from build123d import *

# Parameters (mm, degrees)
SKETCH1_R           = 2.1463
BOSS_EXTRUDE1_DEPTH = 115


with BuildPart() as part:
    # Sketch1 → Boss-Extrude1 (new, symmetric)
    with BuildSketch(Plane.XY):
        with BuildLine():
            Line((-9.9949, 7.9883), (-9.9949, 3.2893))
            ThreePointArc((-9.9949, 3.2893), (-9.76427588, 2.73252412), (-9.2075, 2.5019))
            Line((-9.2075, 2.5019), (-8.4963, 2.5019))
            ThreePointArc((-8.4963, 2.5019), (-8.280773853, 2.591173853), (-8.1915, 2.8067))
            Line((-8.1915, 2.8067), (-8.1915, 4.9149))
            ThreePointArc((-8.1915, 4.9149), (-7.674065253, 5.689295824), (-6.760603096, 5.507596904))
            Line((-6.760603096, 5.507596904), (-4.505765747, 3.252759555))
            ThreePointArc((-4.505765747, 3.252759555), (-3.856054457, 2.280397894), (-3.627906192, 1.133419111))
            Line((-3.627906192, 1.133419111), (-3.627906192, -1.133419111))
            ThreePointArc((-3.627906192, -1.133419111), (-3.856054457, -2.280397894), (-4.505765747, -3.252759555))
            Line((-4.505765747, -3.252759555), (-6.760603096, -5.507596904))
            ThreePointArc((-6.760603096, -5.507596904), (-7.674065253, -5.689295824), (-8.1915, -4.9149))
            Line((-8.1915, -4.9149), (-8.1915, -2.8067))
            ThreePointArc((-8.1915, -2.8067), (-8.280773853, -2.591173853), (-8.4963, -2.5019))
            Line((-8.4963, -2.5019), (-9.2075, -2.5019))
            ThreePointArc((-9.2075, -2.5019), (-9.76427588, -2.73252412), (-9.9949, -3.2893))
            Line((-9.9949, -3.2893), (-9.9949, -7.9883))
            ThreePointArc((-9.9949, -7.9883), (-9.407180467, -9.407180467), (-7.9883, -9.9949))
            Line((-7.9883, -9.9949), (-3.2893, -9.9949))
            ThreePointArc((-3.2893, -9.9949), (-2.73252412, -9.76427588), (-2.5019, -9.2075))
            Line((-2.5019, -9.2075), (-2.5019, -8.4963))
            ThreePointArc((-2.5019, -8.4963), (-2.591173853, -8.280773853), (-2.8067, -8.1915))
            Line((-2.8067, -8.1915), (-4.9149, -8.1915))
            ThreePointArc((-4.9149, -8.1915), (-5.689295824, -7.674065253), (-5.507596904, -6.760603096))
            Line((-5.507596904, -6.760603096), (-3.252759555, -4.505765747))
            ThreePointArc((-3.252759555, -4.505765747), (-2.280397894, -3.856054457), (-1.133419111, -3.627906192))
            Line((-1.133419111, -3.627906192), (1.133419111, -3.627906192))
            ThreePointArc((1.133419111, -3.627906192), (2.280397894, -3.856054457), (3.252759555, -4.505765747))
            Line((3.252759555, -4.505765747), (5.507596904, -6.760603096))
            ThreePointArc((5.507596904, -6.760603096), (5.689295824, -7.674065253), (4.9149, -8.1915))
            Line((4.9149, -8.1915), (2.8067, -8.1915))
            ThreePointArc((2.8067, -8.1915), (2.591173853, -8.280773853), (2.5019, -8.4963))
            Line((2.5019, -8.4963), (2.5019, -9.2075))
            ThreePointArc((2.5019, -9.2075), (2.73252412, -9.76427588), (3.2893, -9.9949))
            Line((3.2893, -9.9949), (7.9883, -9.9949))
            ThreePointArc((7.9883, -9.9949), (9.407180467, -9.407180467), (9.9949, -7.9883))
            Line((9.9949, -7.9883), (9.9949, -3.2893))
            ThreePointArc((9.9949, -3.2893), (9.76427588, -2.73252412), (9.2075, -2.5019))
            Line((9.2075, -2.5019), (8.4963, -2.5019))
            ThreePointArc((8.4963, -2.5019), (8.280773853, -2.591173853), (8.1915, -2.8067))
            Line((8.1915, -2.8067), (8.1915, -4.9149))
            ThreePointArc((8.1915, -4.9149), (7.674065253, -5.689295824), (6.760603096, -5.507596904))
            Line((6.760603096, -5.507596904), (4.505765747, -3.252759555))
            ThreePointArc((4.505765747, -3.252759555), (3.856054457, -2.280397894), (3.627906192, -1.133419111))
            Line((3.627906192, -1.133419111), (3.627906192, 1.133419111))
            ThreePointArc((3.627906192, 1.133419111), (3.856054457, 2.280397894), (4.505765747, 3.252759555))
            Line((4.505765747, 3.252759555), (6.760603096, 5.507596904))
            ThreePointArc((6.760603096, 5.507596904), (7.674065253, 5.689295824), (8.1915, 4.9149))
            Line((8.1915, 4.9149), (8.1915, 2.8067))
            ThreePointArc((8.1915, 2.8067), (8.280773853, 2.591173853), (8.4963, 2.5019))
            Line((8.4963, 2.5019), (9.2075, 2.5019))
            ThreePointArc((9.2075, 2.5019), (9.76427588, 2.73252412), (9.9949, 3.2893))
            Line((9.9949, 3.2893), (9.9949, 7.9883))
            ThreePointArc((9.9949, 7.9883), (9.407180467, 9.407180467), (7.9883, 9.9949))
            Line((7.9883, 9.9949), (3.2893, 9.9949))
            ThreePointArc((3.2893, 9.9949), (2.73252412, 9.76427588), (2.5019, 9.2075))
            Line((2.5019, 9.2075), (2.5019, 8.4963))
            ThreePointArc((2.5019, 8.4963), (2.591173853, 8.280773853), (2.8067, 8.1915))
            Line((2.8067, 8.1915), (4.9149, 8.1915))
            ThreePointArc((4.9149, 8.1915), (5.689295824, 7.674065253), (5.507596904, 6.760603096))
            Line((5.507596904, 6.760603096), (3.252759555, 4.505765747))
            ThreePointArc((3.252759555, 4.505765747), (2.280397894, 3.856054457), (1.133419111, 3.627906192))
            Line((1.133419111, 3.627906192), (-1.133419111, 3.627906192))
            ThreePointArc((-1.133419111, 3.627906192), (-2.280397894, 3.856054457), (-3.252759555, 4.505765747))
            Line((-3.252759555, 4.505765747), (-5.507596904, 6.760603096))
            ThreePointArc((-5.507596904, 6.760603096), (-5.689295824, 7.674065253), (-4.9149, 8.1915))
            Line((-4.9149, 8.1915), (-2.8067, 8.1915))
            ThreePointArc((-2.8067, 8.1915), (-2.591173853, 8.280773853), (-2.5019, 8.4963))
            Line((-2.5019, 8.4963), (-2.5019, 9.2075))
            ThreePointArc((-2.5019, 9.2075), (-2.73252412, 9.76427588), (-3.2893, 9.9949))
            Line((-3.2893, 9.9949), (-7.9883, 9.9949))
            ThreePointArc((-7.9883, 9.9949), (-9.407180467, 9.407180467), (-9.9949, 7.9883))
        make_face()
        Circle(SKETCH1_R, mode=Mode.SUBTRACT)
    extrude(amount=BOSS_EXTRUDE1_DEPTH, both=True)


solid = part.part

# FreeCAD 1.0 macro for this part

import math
import FreeCAD as App
import Part
import Sketcher
Q = App.Units.Quantity

doc = App.newDocument("Part")
body = doc.addObject("PartDesign::Body", "Body")

sketch1 = doc.addObject("Sketcher::SketchObject", "Sketch")
body.addObject(sketch1)
sketch1.AttachmentSupport = (doc.XY_Plane, [""])
sketch1.MapMode = "FlatFace"
sketch1.addGeometry(Part.LineSegment(App.Vector(-9.99, 7.99, 0), App.Vector(-9.99, 3.29, 0)), False)
sketch1.addGeometry(Part.ArcOfCircle(Part.Circle(App.Vector(-9.21, 3.29, 0), App.Vector(0, 0, 1), 0.79), math.radians(180), math.radians(270)), False)
sketch1.addGeometry(Part.LineSegment(App.Vector(-9.21, 2.5, 0), App.Vector(-8.5, 2.5, 0)), False)
sketch1.addGeometry(Part.ArcOfCircle(Part.Circle(App.Vector(-8.5, 2.81, 0), App.Vector(0, 0, 1), 0.3), math.radians(-90), math.radians(0)), False)
sketch1.addGeometry(Part.LineSegment(App.Vector(-8.19, 2.81, 0), App.Vector(-8.19, 4.91, 0)), False)
sketch1.addGeometry(Part.ArcOfCircle(Part.Circle(App.Vector(-7.35, 4.91, 0), App.Vector(0, 0, 1), 0.84), math.radians(45), math.radians(180)), False)
sketch1.addGeometry(Part.LineSegment(App.Vector(-6.76, 5.51, 0), App.Vector(-4.51, 3.25, 0)), False)
sketch1.addGeometry(Part.ArcOfCircle(Part.Circle(App.Vector(-6.63, 1.13, 0), App.Vector(0, 0, 1), 3), math.radians(0), math.radians(45)), False)
sketch1.addGeometry(Part.LineSegment(App.Vector(-3.63, 1.13, 0), App.Vector(-3.63, -1.13, 0)), False)
sketch1.addGeometry(Part.ArcOfCircle(Part.Circle(App.Vector(-6.63, -1.13, 0), App.Vector(0, 0, 1), 3), math.radians(-45), math.radians(0)), False)
sketch1.addGeometry(Part.LineSegment(App.Vector(-4.51, -3.25, 0), App.Vector(-6.76, -5.51, 0)), False)
sketch1.addGeometry(Part.ArcOfCircle(Part.Circle(App.Vector(-7.35, -4.91, 0), App.Vector(0, 0, 1), 0.84), math.radians(180), math.radians(315)), False)
sketch1.addGeometry(Part.LineSegment(App.Vector(-8.19, -4.91, 0), App.Vector(-8.19, -2.81, 0)), False)
sketch1.addGeometry(Part.ArcOfCircle(Part.Circle(App.Vector(-8.5, -2.81, 0), App.Vector(0, 0, 1), 0.3), math.radians(0), math.radians(90)), False)
sketch1.addGeometry(Part.LineSegment(App.Vector(-8.5, -2.5, 0), App.Vector(-9.21, -2.5, 0)), False)
sketch1.addGeometry(Part.ArcOfCircle(Part.Circle(App.Vector(-9.21, -3.29, 0), App.Vector(0, 0, 1), 0.79), math.radians(90), math.radians(180)), False)
sketch1.addGeometry(Part.LineSegment(App.Vector(-9.99, -3.29, 0), App.Vector(-9.99, -7.99, 0)), False)
sketch1.addGeometry(Part.ArcOfCircle(Part.Circle(App.Vector(-7.99, -7.99, 0), App.Vector(0, 0, 1), 2.01), math.radians(180), math.radians(270)), False)
sketch1.addGeometry(Part.LineSegment(App.Vector(-7.99, -9.99, 0), App.Vector(-3.29, -9.99, 0)), False)
sketch1.addGeometry(Part.ArcOfCircle(Part.Circle(App.Vector(-3.29, -9.21, 0), App.Vector(0, 0, 1), 0.79), math.radians(-90), math.radians(0)), False)
sketch1.addGeometry(Part.LineSegment(App.Vector(-2.5, -9.21, 0), App.Vector(-2.5, -8.5, 0)), False)
sketch1.addGeometry(Part.ArcOfCircle(Part.Circle(App.Vector(-2.81, -8.5, 0), App.Vector(0, 0, 1), 0.3), math.radians(0), math.radians(90)), False)
sketch1.addGeometry(Part.LineSegment(App.Vector(-2.81, -8.19, 0), App.Vector(-4.91, -8.19, 0)), False)
sketch1.addGeometry(Part.ArcOfCircle(Part.Circle(App.Vector(-4.91, -7.35, 0), App.Vector(0, 0, 1), 0.84), math.radians(135), math.radians(270)), False)
sketch1.addGeometry(Part.LineSegment(App.Vector(-5.51, -6.76, 0), App.Vector(-3.25, -4.51, 0)), False)
sketch1.addGeometry(Part.ArcOfCircle(Part.Circle(App.Vector(-1.13, -6.63, 0), App.Vector(0, 0, 1), 3), math.radians(90), math.radians(135)), False)
sketch1.addGeometry(Part.LineSegment(App.Vector(-1.13, -3.63, 0), App.Vector(1.13, -3.63, 0)), False)
sketch1.addGeometry(Part.ArcOfCircle(Part.Circle(App.Vector(1.13, -6.63, 0), App.Vector(0, 0, 1), 3), math.radians(45), math.radians(90)), False)
sketch1.addGeometry(Part.LineSegment(App.Vector(3.25, -4.51, 0), App.Vector(5.51, -6.76, 0)), False)
sketch1.addGeometry(Part.ArcOfCircle(Part.Circle(App.Vector(4.91, -7.35, 0), App.Vector(0, 0, 1), 0.84), math.radians(-90), math.radians(45)), False)
sketch1.addGeometry(Part.LineSegment(App.Vector(4.91, -8.19, 0), App.Vector(2.81, -8.19, 0)), False)
sketch1.addGeometry(Part.ArcOfCircle(Part.Circle(App.Vector(2.81, -8.5, 0), App.Vector(0, 0, 1), 0.3), math.radians(90), math.radians(180)), False)
sketch1.addGeometry(Part.LineSegment(App.Vector(2.5, -8.5, 0), App.Vector(2.5, -9.21, 0)), False)
sketch1.addGeometry(Part.ArcOfCircle(Part.Circle(App.Vector(3.29, -9.21, 0), App.Vector(0, 0, 1), 0.79), math.radians(180), math.radians(270)), False)
sketch1.addGeometry(Part.LineSegment(App.Vector(3.29, -9.99, 0), App.Vector(7.99, -9.99, 0)), False)
sketch1.addGeometry(Part.ArcOfCircle(Part.Circle(App.Vector(7.99, -7.99, 0), App.Vector(0, 0, 1), 2.01), math.radians(-90), math.radians(0)), False)
sketch1.addGeometry(Part.LineSegment(App.Vector(9.99, -7.99, 0), App.Vector(9.99, -3.29, 0)), False)
sketch1.addGeometry(Part.ArcOfCircle(Part.Circle(App.Vector(9.21, -3.29, 0), App.Vector(0, 0, 1), 0.79), math.radians(0), math.radians(90)), False)
sketch1.addGeometry(Part.LineSegment(App.Vector(9.21, -2.5, 0), App.Vector(8.5, -2.5, 0)), False)
sketch1.addGeometry(Part.ArcOfCircle(Part.Circle(App.Vector(8.5, -2.81, 0), App.Vector(0, 0, 1), 0.3), math.radians(90), math.radians(180)), False)
sketch1.addGeometry(Part.LineSegment(App.Vector(8.19, -2.81, 0), App.Vector(8.19, -4.91, 0)), False)
sketch1.addGeometry(Part.ArcOfCircle(Part.Circle(App.Vector(7.35, -4.91, 0), App.Vector(0, 0, 1), 0.84), math.radians(-135), math.radians(0)), False)
sketch1.addGeometry(Part.LineSegment(App.Vector(6.76, -5.51, 0), App.Vector(4.51, -3.25, 0)), False)
sketch1.addGeometry(Part.ArcOfCircle(Part.Circle(App.Vector(6.63, -1.13, 0), App.Vector(0, 0, 1), 3), math.radians(180), math.radians(225)), False)
sketch1.addGeometry(Part.LineSegment(App.Vector(3.63, -1.13, 0), App.Vector(3.63, 1.13, 0)), False)
sketch1.addGeometry(Part.ArcOfCircle(Part.Circle(App.Vector(6.63, 1.13, 0), App.Vector(0, 0, 1), 3), math.radians(135), math.radians(180)), False)
sketch1.addGeometry(Part.LineSegment(App.Vector(4.51, 3.25, 0), App.Vector(6.76, 5.51, 0)), False)
sketch1.addGeometry(Part.ArcOfCircle(Part.Circle(App.Vector(7.35, 4.91, 0), App.Vector(0, 0, 1), 0.84), math.radians(0), math.radians(135)), False)
sketch1.addGeometry(Part.LineSegment(App.Vector(8.19, 4.91, 0), App.Vector(8.19, 2.81, 0)), False)
sketch1.addGeometry(Part.ArcOfCircle(Part.Circle(App.Vector(8.5, 2.81, 0), App.Vector(0, 0, 1), 0.3), math.radians(180), math.radians(270)), False)
sketch1.addGeometry(Part.LineSegment(App.Vector(8.5, 2.5, 0), App.Vector(9.21, 2.5, 0)), False)
sketch1.addGeometry(Part.ArcOfCircle(Part.Circle(App.Vector(9.21, 3.29, 0), App.Vector(0, 0, 1), 0.79), math.radians(-90), math.radians(0)), False)
sketch1.addGeometry(Part.LineSegment(App.Vector(9.99, 3.29, 0), App.Vector(9.99, 7.99, 0)), False)
sketch1.addGeometry(Part.ArcOfCircle(Part.Circle(App.Vector(7.99, 7.99, 0), App.Vector(0, 0, 1), 2.01), math.radians(0), math.radians(90)), False)
sketch1.addGeometry(Part.LineSegment(App.Vector(7.99, 9.99, 0), App.Vector(3.29, 9.99, 0)), False)
sketch1.addGeometry(Part.ArcOfCircle(Part.Circle(App.Vector(3.29, 9.21, 0), App.Vector(0, 0, 1), 0.79), math.radians(90), math.radians(180)), False)
sketch1.addGeometry(Part.LineSegment(App.Vector(2.5, 9.21, 0), App.Vector(2.5, 8.5, 0)), False)
sketch1.addGeometry(Part.ArcOfCircle(Part.Circle(App.Vector(2.81, 8.5, 0), App.Vector(0, 0, 1), 0.3), math.radians(180), math.radians(270)), False)
sketch1.addGeometry(Part.LineSegment(App.Vector(2.81, 8.19, 0), App.Vector(4.91, 8.19, 0)), False)
sketch1.addGeometry(Part.ArcOfCircle(Part.Circle(App.Vector(4.91, 7.35, 0), App.Vector(0, 0, 1), 0.84), math.radians(-45), math.radians(90)), False)
sketch1.addGeometry(Part.LineSegment(App.Vector(5.51, 6.76, 0), App.Vector(3.25, 4.51, 0)), False)
sketch1.addGeometry(Part.ArcOfCircle(Part.Circle(App.Vector(1.13, 6.63, 0), App.Vector(0, 0, 1), 3), math.radians(-90), math.radians(-45)), False)
sketch1.addGeometry(Part.LineSegment(App.Vector(1.13, 3.63, 0), App.Vector(-1.13, 3.63, 0)), False)
sketch1.addGeometry(Part.ArcOfCircle(Part.Circle(App.Vector(-1.13, 6.63, 0), App.Vector(0, 0, 1), 3), math.radians(-135), math.radians(-90)), False)
sketch1.addGeometry(Part.LineSegment(App.Vector(-3.25, 4.51, 0), App.Vector(-5.51, 6.76, 0)), False)
sketch1.addGeometry(Part.ArcOfCircle(Part.Circle(App.Vector(-4.91, 7.35, 0), App.Vector(0, 0, 1), 0.84), math.radians(90), math.radians(225)), False)
sketch1.addGeometry(Part.LineSegment(App.Vector(-4.91, 8.19, 0), App.Vector(-2.81, 8.19, 0)), False)
sketch1.addGeometry(Part.ArcOfCircle(Part.Circle(App.Vector(-2.81, 8.5, 0), App.Vector(0, 0, 1), 0.3), math.radians(-90), math.radians(0)), False)
sketch1.addGeometry(Part.LineSegment(App.Vector(-2.5, 8.5, 0), App.Vector(-2.5, 9.21, 0)), False)
sketch1.addGeometry(Part.ArcOfCircle(Part.Circle(App.Vector(-3.29, 9.21, 0), App.Vector(0, 0, 1), 0.79), math.radians(0), math.radians(90)), False)
sketch1.addGeometry(Part.LineSegment(App.Vector(-3.29, 9.99, 0), App.Vector(-7.99, 9.99, 0)), False)
sketch1.addGeometry(Part.ArcOfCircle(Part.Circle(App.Vector(-7.99, 7.99, 0), App.Vector(0, 0, 1), 2.01), math.radians(90), math.radians(180)), False)
sketch1.addGeometry(Part.Circle(App.Vector(0, 0, 0), App.Vector(0, 0, 1), 2.15), False)
sketch1.addConstraint(Sketcher.Constraint("Tangent", 0, 2, 1, 1))
sketch1.addConstraint(Sketcher.Constraint("Tangent", 1, 2, 2, 1))
sketch1.addConstraint(Sketcher.Constraint("Tangent", 2, 2, 3, 1))
sketch1.addConstraint(Sketcher.Constraint("Tangent", 3, 2, 4, 1))
sketch1.addConstraint(Sketcher.Constraint("Tangent", 4, 2, 5, 2))
sketch1.addConstraint(Sketcher.Constraint("Tangent", 5, 1, 6, 1))
sketch1.addConstraint(Sketcher.Constraint("Tangent", 6, 2, 7, 2))
sketch1.addConstraint(Sketcher.Constraint("Tangent", 7, 1, 8, 1))
sketch1.addConstraint(Sketcher.Constraint("Tangent", 8, 2, 9, 2))
sketch1.addConstraint(Sketcher.Constraint("Tangent", 9, 1, 10, 1))
sketch1.addConstraint(Sketcher.Constraint("Tangent", 10, 2, 11, 2))
sketch1.addConstraint(Sketcher.Constraint("Tangent", 11, 1, 12, 1))
sketch1.addConstraint(Sketcher.Constraint("Tangent", 12, 2, 13, 1))
sketch1.addConstraint(Sketcher.Constraint("Tangent", 13, 2, 14, 1))
sketch1.addConstraint(Sketcher.Constraint("Tangent", 14, 2, 15, 1))
sketch1.addConstraint(Sketcher.Constraint("Tangent", 15, 2, 16, 1))
sketch1.addConstraint(Sketcher.Constraint("Tangent", 16, 2, 17, 1))
sketch1.addConstraint(Sketcher.Constraint("Tangent", 17, 2, 18, 1))
sketch1.addConstraint(Sketcher.Constraint("Tangent", 18, 2, 19, 1))
sketch1.addConstraint(Sketcher.Constraint("Tangent", 19, 2, 20, 1))
sketch1.addConstraint(Sketcher.Constraint("Tangent", 20, 2, 21, 1))
sketch1.addConstraint(Sketcher.Constraint("Tangent", 21, 2, 22, 1))
sketch1.addConstraint(Sketcher.Constraint("Tangent", 22, 2, 23, 2))
sketch1.addConstraint(Sketcher.Constraint("Tangent", 23, 1, 24, 1))
sketch1.addConstraint(Sketcher.Constraint("Tangent", 24, 2, 25, 2))
sketch1.addConstraint(Sketcher.Constraint("Tangent", 25, 1, 26, 1))
sketch1.addConstraint(Sketcher.Constraint("Tangent", 26, 2, 27, 2))
sketch1.addConstraint(Sketcher.Constraint("Tangent", 27, 1, 28, 1))
sketch1.addConstraint(Sketcher.Constraint("Tangent", 28, 2, 29, 2))
sketch1.addConstraint(Sketcher.Constraint("Tangent", 29, 1, 30, 1))
sketch1.addConstraint(Sketcher.Constraint("Tangent", 30, 2, 31, 1))
sketch1.addConstraint(Sketcher.Constraint("Tangent", 31, 2, 32, 1))
sketch1.addConstraint(Sketcher.Constraint("Tangent", 32, 2, 33, 1))
sketch1.addConstraint(Sketcher.Constraint("Tangent", 33, 2, 34, 1))
sketch1.addConstraint(Sketcher.Constraint("Tangent", 34, 2, 35, 1))
sketch1.addConstraint(Sketcher.Constraint("Tangent", 35, 2, 36, 1))
sketch1.addConstraint(Sketcher.Constraint("Tangent", 36, 2, 37, 1))
sketch1.addConstraint(Sketcher.Constraint("Tangent", 37, 2, 38, 1))
sketch1.addConstraint(Sketcher.Constraint("Tangent", 38, 2, 39, 1))
sketch1.addConstraint(Sketcher.Constraint("Tangent", 39, 2, 40, 1))
sketch1.addConstraint(Sketcher.Constraint("Tangent", 40, 2, 41, 2))
sketch1.addConstraint(Sketcher.Constraint("Tangent", 41, 1, 42, 1))
sketch1.addConstraint(Sketcher.Constraint("Tangent", 42, 2, 43, 2))
sketch1.addConstraint(Sketcher.Constraint("Tangent", 43, 1, 44, 1))
sketch1.addConstraint(Sketcher.Constraint("Tangent", 44, 2, 45, 2))
sketch1.addConstraint(Sketcher.Constraint("Tangent", 45, 1, 46, 1))
sketch1.addConstraint(Sketcher.Constraint("Tangent", 46, 2, 47, 2))
sketch1.addConstraint(Sketcher.Constraint("Tangent", 47, 1, 48, 1))
sketch1.addConstraint(Sketcher.Constraint("Tangent", 48, 2, 49, 1))
sketch1.addConstraint(Sketcher.Constraint("Tangent", 49, 2, 50, 1))
sketch1.addConstraint(Sketcher.Constraint("Tangent", 50, 2, 51, 1))
sketch1.addConstraint(Sketcher.Constraint("Tangent", 51, 2, 52, 1))
sketch1.addConstraint(Sketcher.Constraint("Tangent", 52, 2, 53, 1))
sketch1.addConstraint(Sketcher.Constraint("Tangent", 53, 2, 54, 1))
sketch1.addConstraint(Sketcher.Constraint("Tangent", 54, 2, 55, 1))
sketch1.addConstraint(Sketcher.Constraint("Tangent", 55, 2, 56, 1))
sketch1.addConstraint(Sketcher.Constraint("Tangent", 56, 2, 57, 1))
sketch1.addConstraint(Sketcher.Constraint("Tangent", 57, 2, 58, 1))
sketch1.addConstraint(Sketcher.Constraint("Tangent", 58, 2, 59, 2))
sketch1.addConstraint(Sketcher.Constraint("Tangent", 59, 1, 60, 1))
sketch1.addConstraint(Sketcher.Constraint("Tangent", 60, 2, 61, 2))
sketch1.addConstraint(Sketcher.Constraint("Tangent", 61, 1, 62, 1))
sketch1.addConstraint(Sketcher.Constraint("Tangent", 62, 2, 63, 2))
sketch1.addConstraint(Sketcher.Constraint("Tangent", 63, 1, 64, 1))
sketch1.addConstraint(Sketcher.Constraint("Tangent", 64, 2, 65, 2))
sketch1.addConstraint(Sketcher.Constraint("Tangent", 65, 1, 66, 1))
sketch1.addConstraint(Sketcher.Constraint("Tangent", 66, 2, 67, 1))
sketch1.addConstraint(Sketcher.Constraint("Tangent", 67, 2, 68, 1))
sketch1.addConstraint(Sketcher.Constraint("Tangent", 68, 2, 69, 1))
sketch1.addConstraint(Sketcher.Constraint("Tangent", 69, 2, 70, 1))
sketch1.addConstraint(Sketcher.Constraint("Tangent", 70, 2, 71, 1))
sketch1.addConstraint(Sketcher.Constraint("Tangent", 71, 2, 0, 1))
sketch1.addConstraint(Sketcher.Constraint("Vertical", 0))
sketch1.addConstraint(Sketcher.Constraint("Horizontal", 2))
sketch1.addConstraint(Sketcher.Constraint("Vertical", 4))
sketch1.addConstraint(Sketcher.Constraint("Vertical", 8))
sketch1.addConstraint(Sketcher.Constraint("Vertical", 12))
sketch1.addConstraint(Sketcher.Constraint("Horizontal", 14))
sketch1.addConstraint(Sketcher.Constraint("Vertical", 16))
sketch1.addConstraint(Sketcher.Constraint("Horizontal", 18))
sketch1.addConstraint(Sketcher.Constraint("Vertical", 20))
sketch1.addConstraint(Sketcher.Constraint("Horizontal", 22))
sketch1.addConstraint(Sketcher.Constraint("Horizontal", 26))
sketch1.addConstraint(Sketcher.Constraint("Horizontal", 30))
sketch1.addConstraint(Sketcher.Constraint("Vertical", 32))
sketch1.addConstraint(Sketcher.Constraint("Horizontal", 34))
sketch1.addConstraint(Sketcher.Constraint("Vertical", 36))
sketch1.addConstraint(Sketcher.Constraint("Horizontal", 38))
sketch1.addConstraint(Sketcher.Constraint("Vertical", 40))
sketch1.addConstraint(Sketcher.Constraint("Vertical", 44))
sketch1.addConstraint(Sketcher.Constraint("Vertical", 48))
sketch1.addConstraint(Sketcher.Constraint("Horizontal", 50))
sketch1.addConstraint(Sketcher.Constraint("Vertical", 52))
sketch1.addConstraint(Sketcher.Constraint("Horizontal", 54))
sketch1.addConstraint(Sketcher.Constraint("Vertical", 56))
sketch1.addConstraint(Sketcher.Constraint("Horizontal", 58))
sketch1.addConstraint(Sketcher.Constraint("Horizontal", 62))
sketch1.addConstraint(Sketcher.Constraint("Horizontal", 66))
sketch1.addConstraint(Sketcher.Constraint("Vertical", 68))
sketch1.addConstraint(Sketcher.Constraint("Horizontal", 70))
sketch1.addConstraint(Sketcher.Constraint("Coincident", 72, 3, -1, 1))
sketch1.addConstraint(Sketcher.Constraint("Equal", 7, 9))
sketch1.addConstraint(Sketcher.Constraint("Equal", 5, 11))
sketch1.addConstraint(Sketcher.Constraint("Equal", 3, 13))
sketch1.addConstraint(Sketcher.Constraint("Equal", 1, 15))
sketch1.addConstraint(Sketcher.Constraint("Equal", 15, 19))
sketch1.addConstraint(Sketcher.Constraint("Equal", 13, 21))
sketch1.addConstraint(Sketcher.Constraint("Equal", 11, 23))
sketch1.addConstraint(Sketcher.Constraint("Equal", 9, 25))
sketch1.addConstraint(Sketcher.Constraint("Equal", 25, 27))
sketch1.addConstraint(Sketcher.Constraint("Equal", 23, 29))
sketch1.addConstraint(Sketcher.Constraint("Equal", 21, 31))
sketch1.addConstraint(Sketcher.Constraint("Equal", 19, 33))
sketch1.addConstraint(Sketcher.Constraint("Equal", 17, 35))
sketch1.addConstraint(Sketcher.Constraint("Equal", 33, 37))
sketch1.addConstraint(Sketcher.Constraint("Equal", 31, 39))
sketch1.addConstraint(Sketcher.Constraint("Equal", 29, 41))
sketch1.addConstraint(Sketcher.Constraint("Equal", 27, 43))
sketch1.addConstraint(Sketcher.Constraint("Equal", 43, 45))
sketch1.addConstraint(Sketcher.Constraint("Equal", 41, 47))
sketch1.addConstraint(Sketcher.Constraint("Equal", 39, 49))
sketch1.addConstraint(Sketcher.Constraint("Equal", 37, 51))
sketch1.addConstraint(Sketcher.Constraint("Equal", 35, 53))
sketch1.addConstraint(Sketcher.Constraint("Equal", 51, 55))
sketch1.addConstraint(Sketcher.Constraint("Equal", 49, 57))
sketch1.addConstraint(Sketcher.Constraint("Equal", 47, 59))
sketch1.addConstraint(Sketcher.Constraint("Equal", 45, 61))
sketch1.addConstraint(Sketcher.Constraint("Equal", 61, 63))
sketch1.addConstraint(Sketcher.Constraint("Equal", 59, 65))
sketch1.addConstraint(Sketcher.Constraint("Equal", 57, 67))
sketch1.addConstraint(Sketcher.Constraint("Equal", 55, 69))
sketch1.addConstraint(Sketcher.Constraint("Equal", 53, 71))
sketch1.addConstraint(Sketcher.Constraint("Symmetric", 1, 3, 37, 3, -1, 1))
sketch1.addConstraint(Sketcher.Constraint("Symmetric", 5, 3, 41, 3, -1, 1))
sketch1.addConstraint(Sketcher.Constraint("Symmetric", 7, 3, 43, 3, -1, 1))
sketch1.addConstraint(Sketcher.Constraint("Symmetric", 11, 3, 47, 3, -1, 1))
sketch1.addConstraint(Sketcher.Constraint("Symmetric", 15, 3, 51, 3, -1, 1))
sketch1.addConstraint(Sketcher.Constraint("Symmetric", 19, 3, 55, 3, -1, 1))
sketch1.addConstraint(Sketcher.Constraint("Symmetric", 23, 3, 59, 3, -1, 1))
sketch1.addConstraint(Sketcher.Constraint("Symmetric", 25, 3, 61, 3, -1, 1))
sketch1.addConstraint(Sketcher.Constraint("Symmetric", 29, 3, 65, 3, -1, 1))
sketch1.addConstraint(Sketcher.Constraint("Symmetric", 33, 3, 69, 3, -1, 1))
sketch1.addConstraint(Sketcher.Constraint("Symmetric", 23, 3, 29, 3, -2))
sketch1.addConstraint(Sketcher.Constraint("Symmetric", 19, 3, 33, 3, -2))
sketch1.addConstraint(Sketcher.Constraint("Symmetric", 15, 3, 37, 3, -2))
sketch1.addConstraint(Sketcher.Constraint("Symmetric", 11, 3, 41, 3, -2))
sketch1.addConstraint(Sketcher.Constraint("Perpendicular", 6, 10))
sketch1.addConstraint(Sketcher.Constraint("Parallel", 10, 24))
sketch1.addConstraint(Sketcher.Constraint("Perpendicular", 24, 28))
sketch1.addConstraint(Sketcher.Constraint("Perpendicular", 42, 46))
sketch1.addConstraint(Sketcher.Constraint("Perpendicular", 60, 64))
sketch1.addConstraint(Sketcher.Constraint("Horizontal", 9, 3, 43, 3))
sketch1.addConstraint(Sketcher.Constraint("Equal", 70, 0))
sketch1.addConstraint(Sketcher.Constraint("Equal", 66, 4))
sketch1.addConstraint(Sketcher.Constraint("Equal", 62, 8))
sketch1.addConstraint(Sketcher.Constraint("Equal", 50, 20))
sketch1.addConstraint(Sketcher.Constraint("Equal", 10, 24))
sketch1.addConstraint(Sketcher.Constraint("Diameter", 72, Q("0.169 in")))
sketch1.addConstraint(Sketcher.Constraint("Radius", 1, Q("0.031 in")))
sketch1.addConstraint(Sketcher.Constraint("Radius", 3, Q("0.012 in")))
sketch1.addConstraint(Sketcher.Constraint("Radius", 5, Q("0.033 in")))
sketch1.addConstraint(Sketcher.Constraint("Radius", 7, Q("0.118 in")))
sketch1.addConstraint(Sketcher.Constraint("Radius", 17, Q("0.079 in")))
sketch1.addConstraint(Sketcher.Constraint("DistanceX", 2, 1, 2, 2, Q("0.028 in")))
sketch1.addConstraint(Sketcher.Constraint("DistanceX", 18, 1, 18, 2, Q("0.185 in")))
sketch1.addConstraint(Sketcher.Constraint("DistanceX", 22, 2, 22, 1, Q("0.083 in")))
sketch1.addConstraint(Sketcher.Constraint("DistanceX", 1, 3, -1, 1, Q("0.3625 in")))
sketch1.addConstraint(Sketcher.Constraint("DistanceX", 26, 1, 26, 2, 2.266838))
pad1 = doc.addObject("PartDesign::Pad", "Pad")
body.addObject(pad1)
pad1.Profile = sketch1
pad1.Length = 230
pad1.Midplane = True

doc.recompute()
